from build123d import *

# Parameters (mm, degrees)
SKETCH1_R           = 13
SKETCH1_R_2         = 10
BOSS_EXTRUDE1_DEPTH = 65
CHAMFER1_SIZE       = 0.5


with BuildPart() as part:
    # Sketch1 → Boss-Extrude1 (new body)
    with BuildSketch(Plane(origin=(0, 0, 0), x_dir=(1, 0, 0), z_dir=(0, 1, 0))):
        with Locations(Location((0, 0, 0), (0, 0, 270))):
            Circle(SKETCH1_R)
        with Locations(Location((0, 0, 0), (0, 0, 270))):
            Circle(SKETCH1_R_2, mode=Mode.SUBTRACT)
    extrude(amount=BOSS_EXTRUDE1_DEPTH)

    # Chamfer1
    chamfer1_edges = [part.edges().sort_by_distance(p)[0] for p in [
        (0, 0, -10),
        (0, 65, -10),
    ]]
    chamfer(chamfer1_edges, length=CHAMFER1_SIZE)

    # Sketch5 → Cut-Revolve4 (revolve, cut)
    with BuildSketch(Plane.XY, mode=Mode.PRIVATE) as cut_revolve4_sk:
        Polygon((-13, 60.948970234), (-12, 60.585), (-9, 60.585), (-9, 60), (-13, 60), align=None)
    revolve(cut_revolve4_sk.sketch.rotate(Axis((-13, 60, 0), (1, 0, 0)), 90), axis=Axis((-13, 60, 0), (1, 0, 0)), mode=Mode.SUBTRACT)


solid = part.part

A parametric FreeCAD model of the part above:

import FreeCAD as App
import Part
import Sketcher
from FreeCAD import Vector
Q = App.Units.Quantity


def edges_at(feature, points):
    """Names of the edges that pass closest to the given points."""
    edges = feature.Shape.Edges
    near = lambda p: min(range(len(edges)), key=lambda i: edges[i].distToShape(Part.Vertex(*p))[0])
    return sorted({f"Edge{near(p) + 1}" for p in points})


def add_polygon(sketch, points):
    """Adds a closed chain of lines whose ends are joined by coincident constraints."""
    first, n = sketch.GeometryCount, len(points)
    for a, b in zip(points, points[1:] + points[:1]):
        sketch.addGeometry(Part.LineSegment(App.Vector(*a, 0), App.Vector(*b, 0)), False)
    for i in range(n):
        sketch.addConstraint(Sketcher.Constraint("Coincident", first + i, 2, first + (i + 1) % n, 1))

doc = App.newDocument("Part")
params = doc.addObject("Spreadsheet::Sheet", "Params")
for row, (alias, value) in enumerate([
    ("sketch1_diameter", "26 mm"),
    ("sketch1_diameter2", "20 mm"),
    ("pad1_length", "65 mm"),
    ("chamfer_size", "0.5 mm"),
    ("sketch2_width", "4 mm"),
    ("sketch2_width2", "3 mm"),
    ("groove_angle", "360 deg"),
], start=1):
    params.set(f"A{row}", alias)
    params.set(f"B{row}", "=" + value)
    params.setAlias(f"B{row}", alias)

body = doc.addObject("PartDesign::Body", "Body")

# Sketch on XZ plane
sketch1 = body.newObject("Sketcher::SketchObject", "Sketch")
sketch1.AttachmentSupport = (doc.getObject("XZ_Plane"), [""])
sketch1.MapMode = "FlatFace"
sketch1.addGeometry([
    Part.Circle(Vector(0, 0, 0), Vector(0, 0, 1), 13),
    Part.Circle(Vector(0, 0, 0), Vector(0, 0, 1), 10),
], False)
sketch1.addConstraint([
    Sketcher.Constraint("Coincident", 0, 3, -1, 1),
    Sketcher.Constraint("Coincident", 1, 3, -1, 1),
    Sketcher.Constraint("Diameter", 0, 26.0),
    Sketcher.Constraint("Diameter", 1, 20.0),
])
sketch1.setExpression("Constraints[2]", "Params.sketch1_diameter")
sketch1.setExpression("Constraints[3]", "Params.sketch1_diameter2")
pad1 = body.newObject("PartDesign::Pad", "Pad")
pad1.Profile = sketch1
pad1.setExpression("Length", "Params.pad1_length")
pad1.Reversed = True
doc.recompute()

chamfer = body.newObject("PartDesign::Chamfer", "Chamfer")
chamfer.Base = (pad1, edges_at(pad1, [(0, 0, -10), (0, 65, -10)]))
chamfer.setExpression("Size", "Params.chamfer_size")

# Sketch on XY plane
sketch2 = body.newObject("Sketcher::SketchObject", "Sketch001")
sketch2.AttachmentSupport = (doc.getObject("XY_Plane"), [""])
sketch2.MapMode = "FlatFace"
add_polygon(sketch2, [(-12, 60.585), (-13, 60.94897), (-13, 60), (-9, 60), (-9, 60.585)])  # lines 0-4
sketch2.addGeometry(Part.LineSegment(Vector(-13, 60, 0), Vector(-9, 60, 0)), True)  # axis
sketch2.addConstraint([
    Sketcher.Constraint("Vertical", 1),
    Sketcher.Constraint("Horizontal", 2),
    Sketcher.Constraint("Vertical", 3),
    Sketcher.Constraint("Horizontal", 4),
    Sketcher.Constraint("Horizontal", 5),
    Sketcher.Constraint("Coincident", 5, 1, 1, 2),
    Sketcher.Constraint("Vertical", 3, 2, 5, 2),
    Sketcher.Constraint("DistanceX", 2, 1, 2, 2, 4.0),
    Sketcher.Constraint("DistanceX", 4, 2, 4, 1, 3.0),
    Sketcher.Constraint("Angle", 0, Q("160 deg")),
    Sketcher.Constraint("DistanceX", 0, 2, -1, 1, 13.0),
    Sketcher.Constraint("DistanceY", -1, 1, 1, 2, 60.0),
    Sketcher.Constraint("DistanceY", 3, 1, 3, 2, 0.585),
])
sketch2.setExpression("Constraints[12]", "Params.sketch2_width")
sketch2.setExpression("Constraints[13]", "Params.sketch2_width2")
groove = body.newObject("PartDesign::Groove", "Groove")
groove.Profile = sketch2
groove.ReferenceAxis = (sketch2, ["Axis0"])
groove.setExpression("Angle", "Params.groove_angle")

doc.recompute()
